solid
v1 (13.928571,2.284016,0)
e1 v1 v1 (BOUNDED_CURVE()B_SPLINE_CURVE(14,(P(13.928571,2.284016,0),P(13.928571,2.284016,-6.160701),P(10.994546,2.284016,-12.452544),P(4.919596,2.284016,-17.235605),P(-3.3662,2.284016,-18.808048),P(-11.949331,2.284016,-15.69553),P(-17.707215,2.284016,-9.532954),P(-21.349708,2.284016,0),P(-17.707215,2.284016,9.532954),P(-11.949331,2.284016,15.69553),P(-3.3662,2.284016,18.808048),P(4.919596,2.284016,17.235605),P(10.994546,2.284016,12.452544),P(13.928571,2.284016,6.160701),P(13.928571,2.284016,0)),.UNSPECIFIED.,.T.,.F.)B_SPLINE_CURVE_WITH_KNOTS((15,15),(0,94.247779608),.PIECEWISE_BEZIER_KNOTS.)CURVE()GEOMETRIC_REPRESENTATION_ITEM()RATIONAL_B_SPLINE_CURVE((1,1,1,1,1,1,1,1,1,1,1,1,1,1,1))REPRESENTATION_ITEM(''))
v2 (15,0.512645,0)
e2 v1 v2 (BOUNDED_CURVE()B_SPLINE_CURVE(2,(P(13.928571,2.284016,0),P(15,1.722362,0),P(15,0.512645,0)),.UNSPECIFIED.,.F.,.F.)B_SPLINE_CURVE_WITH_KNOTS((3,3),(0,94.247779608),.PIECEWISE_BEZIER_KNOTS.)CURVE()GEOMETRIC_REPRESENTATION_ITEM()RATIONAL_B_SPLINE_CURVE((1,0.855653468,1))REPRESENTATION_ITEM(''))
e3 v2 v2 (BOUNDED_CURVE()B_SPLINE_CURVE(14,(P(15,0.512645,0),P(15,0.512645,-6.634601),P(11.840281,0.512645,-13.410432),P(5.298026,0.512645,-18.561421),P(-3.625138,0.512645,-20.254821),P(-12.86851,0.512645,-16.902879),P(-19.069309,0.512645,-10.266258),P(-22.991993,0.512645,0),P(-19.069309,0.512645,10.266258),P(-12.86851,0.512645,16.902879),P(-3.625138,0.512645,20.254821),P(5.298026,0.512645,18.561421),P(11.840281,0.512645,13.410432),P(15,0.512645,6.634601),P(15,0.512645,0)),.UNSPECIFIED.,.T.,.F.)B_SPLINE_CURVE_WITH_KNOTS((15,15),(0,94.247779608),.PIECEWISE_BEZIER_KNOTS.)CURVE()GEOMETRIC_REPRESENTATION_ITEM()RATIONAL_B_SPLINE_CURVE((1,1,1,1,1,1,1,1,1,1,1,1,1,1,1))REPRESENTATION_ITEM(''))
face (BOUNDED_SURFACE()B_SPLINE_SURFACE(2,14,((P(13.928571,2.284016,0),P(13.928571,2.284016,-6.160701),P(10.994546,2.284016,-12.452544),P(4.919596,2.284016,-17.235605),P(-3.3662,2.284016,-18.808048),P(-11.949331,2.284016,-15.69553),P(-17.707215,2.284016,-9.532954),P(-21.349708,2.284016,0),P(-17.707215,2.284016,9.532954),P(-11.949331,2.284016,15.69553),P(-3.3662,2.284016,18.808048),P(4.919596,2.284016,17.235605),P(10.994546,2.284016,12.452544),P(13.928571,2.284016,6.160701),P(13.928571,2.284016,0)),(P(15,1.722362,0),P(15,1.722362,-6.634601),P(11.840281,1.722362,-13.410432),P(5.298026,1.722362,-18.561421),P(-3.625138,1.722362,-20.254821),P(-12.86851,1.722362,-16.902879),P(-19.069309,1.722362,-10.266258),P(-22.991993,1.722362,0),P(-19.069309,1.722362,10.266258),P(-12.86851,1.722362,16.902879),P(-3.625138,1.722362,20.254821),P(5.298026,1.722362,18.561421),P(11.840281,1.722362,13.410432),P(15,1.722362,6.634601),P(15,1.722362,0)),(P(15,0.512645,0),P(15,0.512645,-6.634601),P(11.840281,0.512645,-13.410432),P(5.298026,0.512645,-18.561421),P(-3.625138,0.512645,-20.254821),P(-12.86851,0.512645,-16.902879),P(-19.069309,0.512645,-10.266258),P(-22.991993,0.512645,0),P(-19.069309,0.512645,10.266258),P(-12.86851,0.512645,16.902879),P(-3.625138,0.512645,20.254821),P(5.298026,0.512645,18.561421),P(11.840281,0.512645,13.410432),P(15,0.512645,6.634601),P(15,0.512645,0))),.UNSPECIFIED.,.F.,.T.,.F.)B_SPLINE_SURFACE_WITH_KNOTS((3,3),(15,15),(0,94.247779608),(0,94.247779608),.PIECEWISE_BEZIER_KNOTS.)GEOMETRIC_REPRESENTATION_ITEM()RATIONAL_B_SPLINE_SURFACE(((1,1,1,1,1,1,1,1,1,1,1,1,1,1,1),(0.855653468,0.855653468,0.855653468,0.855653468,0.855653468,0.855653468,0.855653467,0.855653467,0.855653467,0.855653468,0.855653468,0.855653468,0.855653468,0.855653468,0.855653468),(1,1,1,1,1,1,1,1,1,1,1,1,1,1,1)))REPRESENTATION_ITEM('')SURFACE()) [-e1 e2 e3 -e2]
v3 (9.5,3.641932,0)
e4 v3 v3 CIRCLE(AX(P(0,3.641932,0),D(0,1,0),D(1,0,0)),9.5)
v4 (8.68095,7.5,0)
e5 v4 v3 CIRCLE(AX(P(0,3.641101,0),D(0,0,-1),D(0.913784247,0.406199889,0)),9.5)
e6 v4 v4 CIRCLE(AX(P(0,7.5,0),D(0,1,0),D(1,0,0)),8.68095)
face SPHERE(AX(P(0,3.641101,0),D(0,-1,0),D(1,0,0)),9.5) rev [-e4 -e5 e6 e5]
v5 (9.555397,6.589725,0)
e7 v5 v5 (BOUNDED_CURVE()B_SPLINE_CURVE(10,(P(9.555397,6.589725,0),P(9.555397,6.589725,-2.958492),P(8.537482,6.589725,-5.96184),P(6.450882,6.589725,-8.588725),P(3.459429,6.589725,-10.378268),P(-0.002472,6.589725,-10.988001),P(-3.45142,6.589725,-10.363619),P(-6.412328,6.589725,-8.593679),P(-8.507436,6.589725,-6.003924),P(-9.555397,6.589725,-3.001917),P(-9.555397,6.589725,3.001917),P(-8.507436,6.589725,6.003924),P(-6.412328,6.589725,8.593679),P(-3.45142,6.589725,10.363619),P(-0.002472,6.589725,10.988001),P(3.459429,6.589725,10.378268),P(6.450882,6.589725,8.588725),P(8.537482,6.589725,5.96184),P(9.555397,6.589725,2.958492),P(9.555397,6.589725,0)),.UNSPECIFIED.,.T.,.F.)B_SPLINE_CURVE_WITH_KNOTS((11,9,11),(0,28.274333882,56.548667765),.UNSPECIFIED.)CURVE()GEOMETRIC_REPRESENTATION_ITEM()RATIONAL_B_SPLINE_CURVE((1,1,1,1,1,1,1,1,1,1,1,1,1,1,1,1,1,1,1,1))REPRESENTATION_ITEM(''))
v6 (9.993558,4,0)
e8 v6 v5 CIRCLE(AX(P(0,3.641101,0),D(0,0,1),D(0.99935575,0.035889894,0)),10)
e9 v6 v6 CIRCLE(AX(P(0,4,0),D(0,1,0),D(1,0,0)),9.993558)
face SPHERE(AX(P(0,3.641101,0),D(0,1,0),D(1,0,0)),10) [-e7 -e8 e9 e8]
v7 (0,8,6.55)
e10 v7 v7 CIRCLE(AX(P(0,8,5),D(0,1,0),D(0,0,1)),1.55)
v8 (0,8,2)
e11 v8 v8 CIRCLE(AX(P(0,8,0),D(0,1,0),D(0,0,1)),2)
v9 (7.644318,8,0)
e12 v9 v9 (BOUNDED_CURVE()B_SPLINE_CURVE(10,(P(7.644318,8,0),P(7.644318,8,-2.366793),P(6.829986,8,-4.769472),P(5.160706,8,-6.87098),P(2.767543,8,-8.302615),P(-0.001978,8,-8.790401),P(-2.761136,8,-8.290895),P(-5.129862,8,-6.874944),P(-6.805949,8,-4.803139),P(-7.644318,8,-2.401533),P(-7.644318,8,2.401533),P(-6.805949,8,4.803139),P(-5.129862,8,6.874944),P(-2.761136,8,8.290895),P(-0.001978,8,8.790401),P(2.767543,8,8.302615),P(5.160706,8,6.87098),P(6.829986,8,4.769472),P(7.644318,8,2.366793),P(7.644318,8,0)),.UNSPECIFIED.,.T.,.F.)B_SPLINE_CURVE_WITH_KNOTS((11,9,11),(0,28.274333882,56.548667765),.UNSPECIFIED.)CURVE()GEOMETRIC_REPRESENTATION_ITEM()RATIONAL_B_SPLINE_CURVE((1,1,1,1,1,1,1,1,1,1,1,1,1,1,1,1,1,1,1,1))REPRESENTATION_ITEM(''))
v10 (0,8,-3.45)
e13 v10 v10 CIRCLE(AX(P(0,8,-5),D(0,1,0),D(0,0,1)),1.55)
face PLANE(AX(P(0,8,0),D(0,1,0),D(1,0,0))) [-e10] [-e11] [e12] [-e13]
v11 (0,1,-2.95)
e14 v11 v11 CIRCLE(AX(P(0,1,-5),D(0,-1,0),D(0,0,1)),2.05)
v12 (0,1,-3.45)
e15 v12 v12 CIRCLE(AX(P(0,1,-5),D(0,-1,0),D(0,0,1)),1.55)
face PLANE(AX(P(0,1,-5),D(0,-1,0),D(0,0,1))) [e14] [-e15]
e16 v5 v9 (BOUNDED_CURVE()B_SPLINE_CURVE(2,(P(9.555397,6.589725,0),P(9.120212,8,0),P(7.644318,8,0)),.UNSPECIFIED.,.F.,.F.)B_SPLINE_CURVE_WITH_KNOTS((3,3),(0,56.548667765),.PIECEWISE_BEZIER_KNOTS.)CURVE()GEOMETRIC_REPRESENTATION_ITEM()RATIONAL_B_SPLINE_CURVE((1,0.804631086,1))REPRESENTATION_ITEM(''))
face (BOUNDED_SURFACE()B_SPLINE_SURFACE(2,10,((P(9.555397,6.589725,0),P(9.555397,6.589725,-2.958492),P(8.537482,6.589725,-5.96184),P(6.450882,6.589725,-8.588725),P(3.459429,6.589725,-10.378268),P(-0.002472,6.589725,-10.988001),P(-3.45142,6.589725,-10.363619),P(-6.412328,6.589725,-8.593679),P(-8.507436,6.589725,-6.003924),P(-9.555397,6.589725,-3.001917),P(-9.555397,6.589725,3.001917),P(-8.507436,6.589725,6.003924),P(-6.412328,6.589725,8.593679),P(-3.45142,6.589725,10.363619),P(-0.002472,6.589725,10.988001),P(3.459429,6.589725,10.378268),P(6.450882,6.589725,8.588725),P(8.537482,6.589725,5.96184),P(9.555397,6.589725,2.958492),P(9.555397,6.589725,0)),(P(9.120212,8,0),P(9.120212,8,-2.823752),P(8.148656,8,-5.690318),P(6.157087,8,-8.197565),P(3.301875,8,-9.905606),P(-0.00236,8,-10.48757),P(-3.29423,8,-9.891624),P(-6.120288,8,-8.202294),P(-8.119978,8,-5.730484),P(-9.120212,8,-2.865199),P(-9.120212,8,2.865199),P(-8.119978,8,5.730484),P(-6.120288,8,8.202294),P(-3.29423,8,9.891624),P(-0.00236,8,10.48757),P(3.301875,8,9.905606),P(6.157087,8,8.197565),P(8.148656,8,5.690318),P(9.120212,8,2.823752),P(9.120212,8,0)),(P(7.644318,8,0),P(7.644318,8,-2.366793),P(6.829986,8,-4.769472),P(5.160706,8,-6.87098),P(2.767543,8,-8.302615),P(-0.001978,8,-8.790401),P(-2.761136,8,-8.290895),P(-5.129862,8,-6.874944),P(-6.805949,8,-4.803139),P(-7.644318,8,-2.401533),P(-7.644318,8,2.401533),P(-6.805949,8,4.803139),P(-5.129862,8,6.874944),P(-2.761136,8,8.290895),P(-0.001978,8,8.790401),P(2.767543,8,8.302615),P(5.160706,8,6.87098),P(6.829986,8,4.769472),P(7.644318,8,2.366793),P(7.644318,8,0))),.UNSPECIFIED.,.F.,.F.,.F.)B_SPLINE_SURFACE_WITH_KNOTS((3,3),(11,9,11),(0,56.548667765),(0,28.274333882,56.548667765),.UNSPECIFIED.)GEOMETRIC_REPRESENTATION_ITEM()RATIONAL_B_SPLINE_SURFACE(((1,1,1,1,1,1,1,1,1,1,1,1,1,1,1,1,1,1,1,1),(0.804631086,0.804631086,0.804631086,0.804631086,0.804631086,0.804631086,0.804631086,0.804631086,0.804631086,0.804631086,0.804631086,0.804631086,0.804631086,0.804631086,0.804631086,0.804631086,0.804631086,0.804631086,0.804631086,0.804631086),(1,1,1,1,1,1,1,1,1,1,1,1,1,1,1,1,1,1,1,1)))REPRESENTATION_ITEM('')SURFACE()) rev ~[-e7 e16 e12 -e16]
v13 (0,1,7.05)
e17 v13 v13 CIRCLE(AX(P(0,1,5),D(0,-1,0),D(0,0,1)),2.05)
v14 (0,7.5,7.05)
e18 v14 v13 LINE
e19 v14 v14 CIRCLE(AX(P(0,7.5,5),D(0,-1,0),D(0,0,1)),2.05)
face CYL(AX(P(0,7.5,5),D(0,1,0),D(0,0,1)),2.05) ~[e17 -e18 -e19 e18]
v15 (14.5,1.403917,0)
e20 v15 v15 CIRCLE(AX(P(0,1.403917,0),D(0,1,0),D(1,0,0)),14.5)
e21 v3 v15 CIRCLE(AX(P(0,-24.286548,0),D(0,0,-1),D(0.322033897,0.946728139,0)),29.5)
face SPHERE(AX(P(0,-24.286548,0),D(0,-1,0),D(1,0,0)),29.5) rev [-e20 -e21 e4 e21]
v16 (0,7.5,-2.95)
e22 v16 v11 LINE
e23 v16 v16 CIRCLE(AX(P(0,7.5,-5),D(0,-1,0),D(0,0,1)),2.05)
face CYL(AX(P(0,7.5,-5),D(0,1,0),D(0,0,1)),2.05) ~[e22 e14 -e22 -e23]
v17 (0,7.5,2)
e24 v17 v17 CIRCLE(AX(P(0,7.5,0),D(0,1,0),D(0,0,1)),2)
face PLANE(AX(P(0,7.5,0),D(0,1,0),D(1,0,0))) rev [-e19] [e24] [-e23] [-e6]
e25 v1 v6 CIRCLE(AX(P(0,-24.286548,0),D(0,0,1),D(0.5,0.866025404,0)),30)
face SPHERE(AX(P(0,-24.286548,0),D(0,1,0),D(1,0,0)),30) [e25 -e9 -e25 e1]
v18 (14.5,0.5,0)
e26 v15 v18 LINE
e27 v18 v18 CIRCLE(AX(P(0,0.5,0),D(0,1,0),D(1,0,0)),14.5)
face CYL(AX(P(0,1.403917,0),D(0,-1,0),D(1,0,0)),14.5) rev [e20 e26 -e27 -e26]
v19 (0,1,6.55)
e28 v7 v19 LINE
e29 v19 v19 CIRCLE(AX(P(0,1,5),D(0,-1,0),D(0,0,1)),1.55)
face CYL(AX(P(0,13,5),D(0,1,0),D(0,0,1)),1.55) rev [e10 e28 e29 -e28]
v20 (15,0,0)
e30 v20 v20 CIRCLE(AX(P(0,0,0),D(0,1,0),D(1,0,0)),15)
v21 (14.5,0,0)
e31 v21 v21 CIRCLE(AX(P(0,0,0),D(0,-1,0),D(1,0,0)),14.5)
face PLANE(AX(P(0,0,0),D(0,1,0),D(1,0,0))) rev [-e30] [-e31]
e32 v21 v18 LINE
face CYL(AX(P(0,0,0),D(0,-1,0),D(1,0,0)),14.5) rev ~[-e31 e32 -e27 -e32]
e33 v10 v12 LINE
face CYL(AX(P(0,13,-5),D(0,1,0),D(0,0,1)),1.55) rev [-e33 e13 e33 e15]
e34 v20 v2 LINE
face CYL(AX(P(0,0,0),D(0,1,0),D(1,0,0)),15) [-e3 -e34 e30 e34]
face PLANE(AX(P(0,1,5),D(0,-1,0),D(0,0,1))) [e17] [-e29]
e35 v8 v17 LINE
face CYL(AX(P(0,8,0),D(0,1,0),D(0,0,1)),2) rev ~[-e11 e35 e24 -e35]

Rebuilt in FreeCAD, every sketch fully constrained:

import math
import FreeCAD as App
import Part
import Sketcher
Q = App.Units.Quantity


def edges_at(feature, points):
    """Names of the edges that pass closest to the given points."""
    edges = feature.Shape.Edges
    near = lambda p: min(range(len(edges)), key=lambda i: edges[i].distToShape(Part.Vertex(*p))[0])
    return sorted({f"Edge{near(p) + 1}" for p in points})

doc = App.newDocument("Part")
body = doc.addObject("PartDesign::Body", "Body")

sketch1 = body.newObject("Sketcher::SketchObject", "Sketch")
sketch1.AttachmentSupport = (doc.getObject("XY_Plane"), [""])
sketch1.MapMode = "FlatFace"
sketch1.addGeometry([
    Part.LineSegment(App.Vector(15, 0, 0), App.Vector(15, 1.7, 0)),
    Part.ArcOfCircle(Part.Circle(App.Vector(0, -24.3, 0), App.Vector(0, 0, 1), 30), math.radians(60), math.radians(70.54)),
    Part.ArcOfCircle(Part.Circle(App.Vector(0, 3.6, 0), App.Vector(0, 0, 1), 10), math.radians(2), math.radians(26)),
    Part.LineSegment(App.Vector(9, 8, 0), App.Vector(0, 8, 0)),
    Part.LineSegment(App.Vector(0, 8, 0), App.Vector(0, 0, 0)),
    Part.LineSegment(App.Vector(0, 0, 0), App.Vector(15, 0, 0)),
], False)
sketch1.addConstraint([
    Sketcher.Constraint("Coincident", 0, 2, 1, 1),
    Sketcher.Constraint("Coincident", 1, 2, 2, 1),
    Sketcher.Constraint("Coincident", 2, 2, 3, 1),
    Sketcher.Constraint("Coincident", 3, 2, 4, 1),
    Sketcher.Constraint("Coincident", 4, 2, 5, 1),
    Sketcher.Constraint("Coincident", 5, 2, 0, 1),
    Sketcher.Constraint("Vertical", 0),
    Sketcher.Constraint("Horizontal", 3),
    Sketcher.Constraint("Vertical", 4),
    Sketcher.Constraint("Horizontal", 5),
    Sketcher.Constraint("Coincident", 4, 2, -1, 1),
    Sketcher.Constraint("PointOnObject", 1, 3, -2),
    Sketcher.Constraint("PointOnObject", 2, 3, -2),
    Sketcher.Constraint("Radius", 1, Q("30 mm")),
    Sketcher.Constraint("Radius", 2, Q("10 mm")),
    Sketcher.Constraint("DistanceX", 3, 2, 3, 1, Q("9 mm")),
    Sketcher.Constraint("DistanceX", 5, 1, 5, 2, Q("15 mm")),
    Sketcher.Constraint("DistanceY", 4, 2, 4, 1, Q("8 mm")),
    Sketcher.Constraint("DistanceY", -1, 1, 1, 2, Q("4 mm")),
])
revolution = body.newObject("PartDesign::Revolution", "Revolution")
revolution.Profile = sketch1
revolution.ReferenceAxis = (sketch1, ["V_Axis"])
revolution.Angle = 360

sketch2 = body.newObject("Sketcher::SketchObject", "Sketch001")
sketch2.AttachmentSupport = (doc.getObject("XY_Plane"), [""])
sketch2.MapMode = "FlatFace"
sketch2.addGeometry([
    Part.LineSegment(App.Vector(0, 7.5, 0), App.Vector(0, 0.5, 0)),
    Part.LineSegment(App.Vector(0, 0.5, 0), App.Vector(14.5, 0.5, 0)),
    Part.LineSegment(App.Vector(14.5, 0.5, 0), App.Vector(14.5, 1.4, 0)),
    Part.ArcOfCircle(Part.Circle(App.Vector(0, -24.3, 0), App.Vector(0, 0, 1), 29.5), math.radians(60.56), math.radians(71.21)),
    Part.ArcOfCircle(Part.Circle(App.Vector(0, 3.6, 0), App.Vector(0, 0, 1), 9.5), math.radians(0), math.radians(24)),
    Part.LineSegment(App.Vector(8.7, 7.5, 0), App.Vector(0, 7.5, 0)),
], False)
sketch2.addConstraint([
    Sketcher.Constraint("Coincident", 0, 2, 1, 1),
    Sketcher.Constraint("Coincident", 1, 2, 2, 1),
    Sketcher.Constraint("Coincident", 2, 2, 3, 1),
    Sketcher.Constraint("Coincident", 3, 2, 4, 1),
    Sketcher.Constraint("Coincident", 4, 2, 5, 1),
    Sketcher.Constraint("Coincident", 5, 2, 0, 1),
    Sketcher.Constraint("Vertical", 0),
    Sketcher.Constraint("Horizontal", 1),
    Sketcher.Constraint("Vertical", 2),
    Sketcher.Constraint("Horizontal", 5),
    Sketcher.Constraint("PointOnObject", 3, 3, -2),
    Sketcher.Constraint("PointOnObject", 4, 3, -2),
    Sketcher.Constraint("PointOnObject", 0, 2, -2),
    Sketcher.Constraint("Radius", 3, Q("29.5 mm")),
    Sketcher.Constraint("Radius", 4, Q("9.5 mm")),
    Sketcher.Constraint("DistanceY", 0, 2, 0, 1, Q("7 mm")),
    Sketcher.Constraint("DistanceX", 1, 1, 1, 2, Q("14.5 mm")),
    Sketcher.Constraint("DistanceY", -1, 1, 0, 2, Q("0.5 mm")),
    Sketcher.Constraint("DistanceX", 5, 2, 5, 1, Q("8.68095 mm")),
    Sketcher.Constraint("DistanceY", 2, 1, 2, 2, Q("0.903917 mm")),
])
groove = body.newObject("PartDesign::Groove", "Groove")
groove.Profile = sketch2
groove.ReferenceAxis = (sketch2, ["V_Axis"])
groove.Angle = 360

sketch3 = body.newObject("Sketcher::SketchObject", "Sketch002")
sketch3.AttachmentSupport = (doc.getObject("XZ_Plane"), [""])
sketch3.MapMode = "FlatFace"
sketch3.AttachmentOffset = App.Placement(App.Vector(0, 0, -8), App.Rotation())
sketch3.addGeometry(Part.Circle(App.Vector(0, 0, 0), App.Vector(0, 0, 1), 2), False)
sketch3.addConstraint([
    Sketcher.Constraint("Coincident", 0, 3, -1, 1),
    Sketcher.Constraint("Diameter", 0, Q("4 mm")),
])
pocket1 = body.newObject("PartDesign::Pocket", "Pocket")
pocket1.Profile = sketch3
pocket1.Length = 6
pocket1.Reversed = True

sketch4 = body.newObject("Sketcher::SketchObject", "Sketch003")
sketch4.AttachmentSupport = (doc.getObject("XZ_Plane"), [""])
sketch4.MapMode = "FlatFace"
sketch4.addGeometry(Part.Circle(App.Vector(0, 0, 0), App.Vector(0, 0, 1), 14), False)
sketch4.addConstraint([
    Sketcher.Constraint("Coincident", 0, 3, -1, 1),
    Sketcher.Constraint("Diameter", 0, Q("29 mm")),
])
pocket2 = body.newObject("PartDesign::Pocket", "Pocket001")
pocket2.Profile = sketch4
pocket2.Length = 0.5

sketch5 = body.newObject("Sketcher::SketchObject", "Sketch004")
sketch5.AttachmentSupport = (doc.getObject("XZ_Plane"), [""])
sketch5.MapMode = "FlatFace"
sketch5.AttachmentOffset = App.Placement(App.Vector(0, 0, -7.5), App.Rotation())
sketch5.addGeometry([
    Part.Circle(App.Vector(0, 5, 0), App.Vector(0, 0, 1), 2),
    Part.Circle(App.Vector(0, 5, 0), App.Vector(0, 0, 1), 1.6),
    Part.Circle(App.Vector(0, -5, 0), App.Vector(0, 0, 1), 2),
    Part.Circle(App.Vector(0, -5, 0), App.Vector(0, 0, 1), 1.6),
], False)
sketch5.addConstraint([
    Sketcher.Constraint("Coincident", 1, 3, 0, 3),
    Sketcher.Constraint("Coincident", 3, 3, 2, 3),
    Sketcher.Constraint("Equal", 0, 2),
    Sketcher.Constraint("Equal", 1, 3),
    Sketcher.Constraint("Symmetric", 0, 3, 2, 3, -1, 1),
    Sketcher.Constraint("PointOnObject", 0, 3, -2),
    Sketcher.Constraint("Diameter", 0, Q("4.1 mm")),
    Sketcher.Constraint("Diameter", 1, Q("3.1 mm")),
    Sketcher.Constraint("DistanceY", -1, 1, 0, 3, Q("5 mm")),
])
pad1 = body.newObject("PartDesign::Pad", "Pad")
pad1.Profile = sketch5
pad1.Length = 6.5

sketch6 = body.newObject("Sketcher::SketchObject", "Sketch005")
sketch6.AttachmentSupport = (doc.getObject("XZ_Plane"), [""])
sketch6.MapMode = "FlatFace"
sketch6.AttachmentOffset = App.Placement(App.Vector(0, 0, -13), App.Rotation())
sketch6.addGeometry([
    Part.Circle(App.Vector(0, -5, 0), App.Vector(0, 0, 1), 1.6),
    Part.Circle(App.Vector(0, 5, 0), App.Vector(0, 0, 1), 1.6),
], False)
sketch6.addConstraint([
    Sketcher.Constraint("Equal", 0, 1),
    Sketcher.Constraint("Symmetric", 0, 3, 1, 3, -1, 1),
    Sketcher.Constraint("PointOnObject", 0, 3, -2),
    Sketcher.Constraint("Diameter", 0, Q("3.1 mm")),
    Sketcher.Constraint("DistanceY", 0, 3, -1, 1, Q("5 mm")),
])
pocket3 = body.newObject("PartDesign::Pocket", "Pocket002")
pocket3.Profile = sketch6
pocket3.Length = 5.5
pocket3.Reversed = True
doc.recompute()

fillet = body.newObject("PartDesign::Fillet", "Fillet")
fillet.Base = (pocket3, edges_at(pocket3, [(-9, 8, 0)]))
fillet.Radius = 2
doc.recompute()

fillet2 = body.newObject("PartDesign::Fillet", "Fillet001")
fillet2.Base = (fillet, edges_at(fillet, [(-15, 1.694, 0)]))
fillet2.Radius = 2

doc.recompute()
